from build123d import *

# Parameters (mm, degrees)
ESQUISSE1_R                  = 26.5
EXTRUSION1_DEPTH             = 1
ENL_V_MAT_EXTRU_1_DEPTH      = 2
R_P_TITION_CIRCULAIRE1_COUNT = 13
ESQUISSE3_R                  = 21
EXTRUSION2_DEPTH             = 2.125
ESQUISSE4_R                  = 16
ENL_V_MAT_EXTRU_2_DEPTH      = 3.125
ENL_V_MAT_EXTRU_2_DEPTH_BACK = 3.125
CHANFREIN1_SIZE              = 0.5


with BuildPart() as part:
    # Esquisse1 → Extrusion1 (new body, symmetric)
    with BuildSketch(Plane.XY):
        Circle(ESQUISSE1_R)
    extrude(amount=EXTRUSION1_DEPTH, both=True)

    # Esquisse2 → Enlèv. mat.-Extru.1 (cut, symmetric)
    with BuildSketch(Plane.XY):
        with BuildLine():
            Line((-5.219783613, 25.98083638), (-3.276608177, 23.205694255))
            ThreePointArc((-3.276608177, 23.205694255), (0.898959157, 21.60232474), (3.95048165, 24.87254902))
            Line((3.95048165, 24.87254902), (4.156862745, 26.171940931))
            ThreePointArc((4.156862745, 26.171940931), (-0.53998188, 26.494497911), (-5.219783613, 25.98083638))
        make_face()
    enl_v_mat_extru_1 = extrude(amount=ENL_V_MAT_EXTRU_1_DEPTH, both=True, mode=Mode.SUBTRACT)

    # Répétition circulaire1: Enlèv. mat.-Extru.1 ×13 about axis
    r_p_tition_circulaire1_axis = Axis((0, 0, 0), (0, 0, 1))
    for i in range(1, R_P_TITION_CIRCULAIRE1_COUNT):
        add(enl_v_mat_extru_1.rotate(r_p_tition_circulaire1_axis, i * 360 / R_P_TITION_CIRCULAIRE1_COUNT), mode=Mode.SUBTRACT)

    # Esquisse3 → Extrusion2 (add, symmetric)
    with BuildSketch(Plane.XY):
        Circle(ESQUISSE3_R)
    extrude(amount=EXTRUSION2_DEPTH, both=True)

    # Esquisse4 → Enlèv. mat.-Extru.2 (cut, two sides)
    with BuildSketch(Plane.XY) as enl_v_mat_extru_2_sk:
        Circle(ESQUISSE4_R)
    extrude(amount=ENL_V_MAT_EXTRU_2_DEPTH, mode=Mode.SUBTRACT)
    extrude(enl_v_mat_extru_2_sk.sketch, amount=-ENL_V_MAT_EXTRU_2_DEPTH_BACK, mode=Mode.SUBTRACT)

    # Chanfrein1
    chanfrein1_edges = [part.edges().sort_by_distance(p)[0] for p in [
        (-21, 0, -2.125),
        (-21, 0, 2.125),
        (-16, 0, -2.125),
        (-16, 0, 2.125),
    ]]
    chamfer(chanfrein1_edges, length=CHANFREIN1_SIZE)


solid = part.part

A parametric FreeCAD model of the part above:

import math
import FreeCAD as App
import Part
import Sketcher
from FreeCAD import Vector
Q = App.Units.Quantity


def edges_at(feature, points):
    """Names of the edges that pass closest to the given points."""
    edges = feature.Shape.Edges
    near = lambda p: min(range(len(edges)), key=lambda i: edges[i].distToShape(Part.Vertex(*p))[0])
    return sorted({f"Edge{near(p) + 1}" for p in points})

doc = App.newDocument("Part")
body = doc.addObject("PartDesign::Body", "Body")

# Sketch on XY plane
sketch1 = body.newObject("Sketcher::SketchObject", "Sketch")
sketch1.AttachmentSupport = (doc.getObject("XY_Plane"), [""])
sketch1.MapMode = "FlatFace"
sketch1.addGeometry(Part.Circle(Vector(0, 0, 0), Vector(0, 0, 1), 26.5), False)
sketch1.addConstraint(Sketcher.Constraint("Coincident", 0, 3, -1, 1))
sketch1.addConstraint(Sketcher.Constraint("Diameter", 0, Q("53 mm")))
pad1 = body.newObject("PartDesign::Pad", "Pad")
pad1.Profile = sketch1
pad1.Length = 2
pad1.Midplane = True

# Sketch on XY plane
sketch2 = body.newObject("Sketcher::SketchObject", "Sketch001")
sketch2.AttachmentSupport = (doc.getObject("XY_Plane"), [""])
sketch2.MapMode = "FlatFace"
sketch2.addGeometry(Part.LineSegment(Vector(-5.219784, 25.980836, 0), Vector(-3.276608, 23.205694, 0)), False)
sketch2.addGeometry(Part.ArcOfCircle(Part.Circle(Vector(0, 25.5, 0), Vector(0, 0, 1), 4), math.radians(-145), math.radians(-9.024845)), False)
sketch2.addGeometry(Part.LineSegment(Vector(3.950482, 24.872549, 0), Vector(4.156863, 26.171941, 0)), False)
sketch2.addGeometry(Part.ArcOfCircle(Part.Circle(Vector(0, 0, 0), Vector(0, 0, 1), 26.5), math.radians(80.975155), math.radians(101.360002)), False)
sketch2.addConstraint(Sketcher.Constraint("Tangent", 0, 2, 1, 1))
sketch2.addConstraint(Sketcher.Constraint("Tangent", 1, 2, 2, 1))
sketch2.addConstraint(Sketcher.Constraint("Coincident", 2, 2, 3, 1))
sketch2.addConstraint(Sketcher.Constraint("Coincident", 3, 2, 0, 1))
sketch2.addConstraint(Sketcher.Constraint("Coincident", 3, 3, -1, 1))
sketch2.addConstraint(Sketcher.Constraint("PointOnObject", 1, 3, -2))
sketch2.addConstraint(Sketcher.Constraint("Radius", 1, Q("4 mm")))
sketch2.addConstraint(Sketcher.Constraint("Radius", 3, Q("26.5 mm")))
sketch2.addConstraint(Sketcher.Constraint("Angle", 0, Q("-55 deg")))
sketch2.addConstraint(Sketcher.Constraint("DistanceY", -1, 1, 1, 3, Q("25.5 mm")))
sketch2.addConstraint(Sketcher.Constraint("Distance", 2, Q("1.315679 mm")))
pocket1 = body.newObject("PartDesign::Pocket", "Pocket")
pocket1.Profile = sketch2
pocket1.Length = 4
pocket1.Midplane = True
doc.recompute()

polarpattern = body.newObject("PartDesign::PolarPattern", "PolarPattern")
polarpattern.Originals = [pocket1]
polarpattern.Axis = (doc.getObject("Z_Axis"), [""])
polarpattern.Angle = 360
polarpattern.Occurrences = 13
body.Tip = polarpattern

# Sketch on XY plane
sketch3 = body.newObject("Sketcher::SketchObject", "Sketch002")
sketch3.AttachmentSupport = (doc.getObject("XY_Plane"), [""])
sketch3.MapMode = "FlatFace"
sketch3.addGeometry(Part.Circle(Vector(0, 0, 0), Vector(0, 0, 1), 21), False)
sketch3.addConstraint(Sketcher.Constraint("Coincident", 0, 3, -1, 1))
sketch3.addConstraint(Sketcher.Constraint("Diameter", 0, Q("42 mm")))
pad2 = body.newObject("PartDesign::Pad", "Pad001")
pad2.Profile = sketch3
pad2.Length = 4.25
pad2.Midplane = True

# Sketch on XY plane
sketch4 = body.newObject("Sketcher::SketchObject", "Sketch003")
sketch4.AttachmentSupport = (doc.getObject("XY_Plane"), [""])
sketch4.MapMode = "FlatFace"
sketch4.addGeometry(Part.Circle(Vector(0, 0, 0), Vector(0, 0, 1), 16), False)
sketch4.addConstraint(Sketcher.Constraint("Coincident", 0, 3, -1, 1))
sketch4.addConstraint(Sketcher.Constraint("Diameter", 0, Q("32 mm")))
pocket2 = body.newObject("PartDesign::Pocket", "Pocket001")
pocket2.Profile = sketch4
pocket2.Type = "ThroughAll"
pocket2.Midplane = True
doc.recompute()

chamfer = body.newObject("PartDesign::Chamfer", "Chamfer")
chamfer.Base = (pocket2, edges_at(pocket2, [
    (-21, 0, -2.125),
    (-21, 0, 2.125),
    (-16, 0, -2.125),
    (-16, 0, 2.125),
]))
chamfer.Size = 0.5

doc.recompute()
